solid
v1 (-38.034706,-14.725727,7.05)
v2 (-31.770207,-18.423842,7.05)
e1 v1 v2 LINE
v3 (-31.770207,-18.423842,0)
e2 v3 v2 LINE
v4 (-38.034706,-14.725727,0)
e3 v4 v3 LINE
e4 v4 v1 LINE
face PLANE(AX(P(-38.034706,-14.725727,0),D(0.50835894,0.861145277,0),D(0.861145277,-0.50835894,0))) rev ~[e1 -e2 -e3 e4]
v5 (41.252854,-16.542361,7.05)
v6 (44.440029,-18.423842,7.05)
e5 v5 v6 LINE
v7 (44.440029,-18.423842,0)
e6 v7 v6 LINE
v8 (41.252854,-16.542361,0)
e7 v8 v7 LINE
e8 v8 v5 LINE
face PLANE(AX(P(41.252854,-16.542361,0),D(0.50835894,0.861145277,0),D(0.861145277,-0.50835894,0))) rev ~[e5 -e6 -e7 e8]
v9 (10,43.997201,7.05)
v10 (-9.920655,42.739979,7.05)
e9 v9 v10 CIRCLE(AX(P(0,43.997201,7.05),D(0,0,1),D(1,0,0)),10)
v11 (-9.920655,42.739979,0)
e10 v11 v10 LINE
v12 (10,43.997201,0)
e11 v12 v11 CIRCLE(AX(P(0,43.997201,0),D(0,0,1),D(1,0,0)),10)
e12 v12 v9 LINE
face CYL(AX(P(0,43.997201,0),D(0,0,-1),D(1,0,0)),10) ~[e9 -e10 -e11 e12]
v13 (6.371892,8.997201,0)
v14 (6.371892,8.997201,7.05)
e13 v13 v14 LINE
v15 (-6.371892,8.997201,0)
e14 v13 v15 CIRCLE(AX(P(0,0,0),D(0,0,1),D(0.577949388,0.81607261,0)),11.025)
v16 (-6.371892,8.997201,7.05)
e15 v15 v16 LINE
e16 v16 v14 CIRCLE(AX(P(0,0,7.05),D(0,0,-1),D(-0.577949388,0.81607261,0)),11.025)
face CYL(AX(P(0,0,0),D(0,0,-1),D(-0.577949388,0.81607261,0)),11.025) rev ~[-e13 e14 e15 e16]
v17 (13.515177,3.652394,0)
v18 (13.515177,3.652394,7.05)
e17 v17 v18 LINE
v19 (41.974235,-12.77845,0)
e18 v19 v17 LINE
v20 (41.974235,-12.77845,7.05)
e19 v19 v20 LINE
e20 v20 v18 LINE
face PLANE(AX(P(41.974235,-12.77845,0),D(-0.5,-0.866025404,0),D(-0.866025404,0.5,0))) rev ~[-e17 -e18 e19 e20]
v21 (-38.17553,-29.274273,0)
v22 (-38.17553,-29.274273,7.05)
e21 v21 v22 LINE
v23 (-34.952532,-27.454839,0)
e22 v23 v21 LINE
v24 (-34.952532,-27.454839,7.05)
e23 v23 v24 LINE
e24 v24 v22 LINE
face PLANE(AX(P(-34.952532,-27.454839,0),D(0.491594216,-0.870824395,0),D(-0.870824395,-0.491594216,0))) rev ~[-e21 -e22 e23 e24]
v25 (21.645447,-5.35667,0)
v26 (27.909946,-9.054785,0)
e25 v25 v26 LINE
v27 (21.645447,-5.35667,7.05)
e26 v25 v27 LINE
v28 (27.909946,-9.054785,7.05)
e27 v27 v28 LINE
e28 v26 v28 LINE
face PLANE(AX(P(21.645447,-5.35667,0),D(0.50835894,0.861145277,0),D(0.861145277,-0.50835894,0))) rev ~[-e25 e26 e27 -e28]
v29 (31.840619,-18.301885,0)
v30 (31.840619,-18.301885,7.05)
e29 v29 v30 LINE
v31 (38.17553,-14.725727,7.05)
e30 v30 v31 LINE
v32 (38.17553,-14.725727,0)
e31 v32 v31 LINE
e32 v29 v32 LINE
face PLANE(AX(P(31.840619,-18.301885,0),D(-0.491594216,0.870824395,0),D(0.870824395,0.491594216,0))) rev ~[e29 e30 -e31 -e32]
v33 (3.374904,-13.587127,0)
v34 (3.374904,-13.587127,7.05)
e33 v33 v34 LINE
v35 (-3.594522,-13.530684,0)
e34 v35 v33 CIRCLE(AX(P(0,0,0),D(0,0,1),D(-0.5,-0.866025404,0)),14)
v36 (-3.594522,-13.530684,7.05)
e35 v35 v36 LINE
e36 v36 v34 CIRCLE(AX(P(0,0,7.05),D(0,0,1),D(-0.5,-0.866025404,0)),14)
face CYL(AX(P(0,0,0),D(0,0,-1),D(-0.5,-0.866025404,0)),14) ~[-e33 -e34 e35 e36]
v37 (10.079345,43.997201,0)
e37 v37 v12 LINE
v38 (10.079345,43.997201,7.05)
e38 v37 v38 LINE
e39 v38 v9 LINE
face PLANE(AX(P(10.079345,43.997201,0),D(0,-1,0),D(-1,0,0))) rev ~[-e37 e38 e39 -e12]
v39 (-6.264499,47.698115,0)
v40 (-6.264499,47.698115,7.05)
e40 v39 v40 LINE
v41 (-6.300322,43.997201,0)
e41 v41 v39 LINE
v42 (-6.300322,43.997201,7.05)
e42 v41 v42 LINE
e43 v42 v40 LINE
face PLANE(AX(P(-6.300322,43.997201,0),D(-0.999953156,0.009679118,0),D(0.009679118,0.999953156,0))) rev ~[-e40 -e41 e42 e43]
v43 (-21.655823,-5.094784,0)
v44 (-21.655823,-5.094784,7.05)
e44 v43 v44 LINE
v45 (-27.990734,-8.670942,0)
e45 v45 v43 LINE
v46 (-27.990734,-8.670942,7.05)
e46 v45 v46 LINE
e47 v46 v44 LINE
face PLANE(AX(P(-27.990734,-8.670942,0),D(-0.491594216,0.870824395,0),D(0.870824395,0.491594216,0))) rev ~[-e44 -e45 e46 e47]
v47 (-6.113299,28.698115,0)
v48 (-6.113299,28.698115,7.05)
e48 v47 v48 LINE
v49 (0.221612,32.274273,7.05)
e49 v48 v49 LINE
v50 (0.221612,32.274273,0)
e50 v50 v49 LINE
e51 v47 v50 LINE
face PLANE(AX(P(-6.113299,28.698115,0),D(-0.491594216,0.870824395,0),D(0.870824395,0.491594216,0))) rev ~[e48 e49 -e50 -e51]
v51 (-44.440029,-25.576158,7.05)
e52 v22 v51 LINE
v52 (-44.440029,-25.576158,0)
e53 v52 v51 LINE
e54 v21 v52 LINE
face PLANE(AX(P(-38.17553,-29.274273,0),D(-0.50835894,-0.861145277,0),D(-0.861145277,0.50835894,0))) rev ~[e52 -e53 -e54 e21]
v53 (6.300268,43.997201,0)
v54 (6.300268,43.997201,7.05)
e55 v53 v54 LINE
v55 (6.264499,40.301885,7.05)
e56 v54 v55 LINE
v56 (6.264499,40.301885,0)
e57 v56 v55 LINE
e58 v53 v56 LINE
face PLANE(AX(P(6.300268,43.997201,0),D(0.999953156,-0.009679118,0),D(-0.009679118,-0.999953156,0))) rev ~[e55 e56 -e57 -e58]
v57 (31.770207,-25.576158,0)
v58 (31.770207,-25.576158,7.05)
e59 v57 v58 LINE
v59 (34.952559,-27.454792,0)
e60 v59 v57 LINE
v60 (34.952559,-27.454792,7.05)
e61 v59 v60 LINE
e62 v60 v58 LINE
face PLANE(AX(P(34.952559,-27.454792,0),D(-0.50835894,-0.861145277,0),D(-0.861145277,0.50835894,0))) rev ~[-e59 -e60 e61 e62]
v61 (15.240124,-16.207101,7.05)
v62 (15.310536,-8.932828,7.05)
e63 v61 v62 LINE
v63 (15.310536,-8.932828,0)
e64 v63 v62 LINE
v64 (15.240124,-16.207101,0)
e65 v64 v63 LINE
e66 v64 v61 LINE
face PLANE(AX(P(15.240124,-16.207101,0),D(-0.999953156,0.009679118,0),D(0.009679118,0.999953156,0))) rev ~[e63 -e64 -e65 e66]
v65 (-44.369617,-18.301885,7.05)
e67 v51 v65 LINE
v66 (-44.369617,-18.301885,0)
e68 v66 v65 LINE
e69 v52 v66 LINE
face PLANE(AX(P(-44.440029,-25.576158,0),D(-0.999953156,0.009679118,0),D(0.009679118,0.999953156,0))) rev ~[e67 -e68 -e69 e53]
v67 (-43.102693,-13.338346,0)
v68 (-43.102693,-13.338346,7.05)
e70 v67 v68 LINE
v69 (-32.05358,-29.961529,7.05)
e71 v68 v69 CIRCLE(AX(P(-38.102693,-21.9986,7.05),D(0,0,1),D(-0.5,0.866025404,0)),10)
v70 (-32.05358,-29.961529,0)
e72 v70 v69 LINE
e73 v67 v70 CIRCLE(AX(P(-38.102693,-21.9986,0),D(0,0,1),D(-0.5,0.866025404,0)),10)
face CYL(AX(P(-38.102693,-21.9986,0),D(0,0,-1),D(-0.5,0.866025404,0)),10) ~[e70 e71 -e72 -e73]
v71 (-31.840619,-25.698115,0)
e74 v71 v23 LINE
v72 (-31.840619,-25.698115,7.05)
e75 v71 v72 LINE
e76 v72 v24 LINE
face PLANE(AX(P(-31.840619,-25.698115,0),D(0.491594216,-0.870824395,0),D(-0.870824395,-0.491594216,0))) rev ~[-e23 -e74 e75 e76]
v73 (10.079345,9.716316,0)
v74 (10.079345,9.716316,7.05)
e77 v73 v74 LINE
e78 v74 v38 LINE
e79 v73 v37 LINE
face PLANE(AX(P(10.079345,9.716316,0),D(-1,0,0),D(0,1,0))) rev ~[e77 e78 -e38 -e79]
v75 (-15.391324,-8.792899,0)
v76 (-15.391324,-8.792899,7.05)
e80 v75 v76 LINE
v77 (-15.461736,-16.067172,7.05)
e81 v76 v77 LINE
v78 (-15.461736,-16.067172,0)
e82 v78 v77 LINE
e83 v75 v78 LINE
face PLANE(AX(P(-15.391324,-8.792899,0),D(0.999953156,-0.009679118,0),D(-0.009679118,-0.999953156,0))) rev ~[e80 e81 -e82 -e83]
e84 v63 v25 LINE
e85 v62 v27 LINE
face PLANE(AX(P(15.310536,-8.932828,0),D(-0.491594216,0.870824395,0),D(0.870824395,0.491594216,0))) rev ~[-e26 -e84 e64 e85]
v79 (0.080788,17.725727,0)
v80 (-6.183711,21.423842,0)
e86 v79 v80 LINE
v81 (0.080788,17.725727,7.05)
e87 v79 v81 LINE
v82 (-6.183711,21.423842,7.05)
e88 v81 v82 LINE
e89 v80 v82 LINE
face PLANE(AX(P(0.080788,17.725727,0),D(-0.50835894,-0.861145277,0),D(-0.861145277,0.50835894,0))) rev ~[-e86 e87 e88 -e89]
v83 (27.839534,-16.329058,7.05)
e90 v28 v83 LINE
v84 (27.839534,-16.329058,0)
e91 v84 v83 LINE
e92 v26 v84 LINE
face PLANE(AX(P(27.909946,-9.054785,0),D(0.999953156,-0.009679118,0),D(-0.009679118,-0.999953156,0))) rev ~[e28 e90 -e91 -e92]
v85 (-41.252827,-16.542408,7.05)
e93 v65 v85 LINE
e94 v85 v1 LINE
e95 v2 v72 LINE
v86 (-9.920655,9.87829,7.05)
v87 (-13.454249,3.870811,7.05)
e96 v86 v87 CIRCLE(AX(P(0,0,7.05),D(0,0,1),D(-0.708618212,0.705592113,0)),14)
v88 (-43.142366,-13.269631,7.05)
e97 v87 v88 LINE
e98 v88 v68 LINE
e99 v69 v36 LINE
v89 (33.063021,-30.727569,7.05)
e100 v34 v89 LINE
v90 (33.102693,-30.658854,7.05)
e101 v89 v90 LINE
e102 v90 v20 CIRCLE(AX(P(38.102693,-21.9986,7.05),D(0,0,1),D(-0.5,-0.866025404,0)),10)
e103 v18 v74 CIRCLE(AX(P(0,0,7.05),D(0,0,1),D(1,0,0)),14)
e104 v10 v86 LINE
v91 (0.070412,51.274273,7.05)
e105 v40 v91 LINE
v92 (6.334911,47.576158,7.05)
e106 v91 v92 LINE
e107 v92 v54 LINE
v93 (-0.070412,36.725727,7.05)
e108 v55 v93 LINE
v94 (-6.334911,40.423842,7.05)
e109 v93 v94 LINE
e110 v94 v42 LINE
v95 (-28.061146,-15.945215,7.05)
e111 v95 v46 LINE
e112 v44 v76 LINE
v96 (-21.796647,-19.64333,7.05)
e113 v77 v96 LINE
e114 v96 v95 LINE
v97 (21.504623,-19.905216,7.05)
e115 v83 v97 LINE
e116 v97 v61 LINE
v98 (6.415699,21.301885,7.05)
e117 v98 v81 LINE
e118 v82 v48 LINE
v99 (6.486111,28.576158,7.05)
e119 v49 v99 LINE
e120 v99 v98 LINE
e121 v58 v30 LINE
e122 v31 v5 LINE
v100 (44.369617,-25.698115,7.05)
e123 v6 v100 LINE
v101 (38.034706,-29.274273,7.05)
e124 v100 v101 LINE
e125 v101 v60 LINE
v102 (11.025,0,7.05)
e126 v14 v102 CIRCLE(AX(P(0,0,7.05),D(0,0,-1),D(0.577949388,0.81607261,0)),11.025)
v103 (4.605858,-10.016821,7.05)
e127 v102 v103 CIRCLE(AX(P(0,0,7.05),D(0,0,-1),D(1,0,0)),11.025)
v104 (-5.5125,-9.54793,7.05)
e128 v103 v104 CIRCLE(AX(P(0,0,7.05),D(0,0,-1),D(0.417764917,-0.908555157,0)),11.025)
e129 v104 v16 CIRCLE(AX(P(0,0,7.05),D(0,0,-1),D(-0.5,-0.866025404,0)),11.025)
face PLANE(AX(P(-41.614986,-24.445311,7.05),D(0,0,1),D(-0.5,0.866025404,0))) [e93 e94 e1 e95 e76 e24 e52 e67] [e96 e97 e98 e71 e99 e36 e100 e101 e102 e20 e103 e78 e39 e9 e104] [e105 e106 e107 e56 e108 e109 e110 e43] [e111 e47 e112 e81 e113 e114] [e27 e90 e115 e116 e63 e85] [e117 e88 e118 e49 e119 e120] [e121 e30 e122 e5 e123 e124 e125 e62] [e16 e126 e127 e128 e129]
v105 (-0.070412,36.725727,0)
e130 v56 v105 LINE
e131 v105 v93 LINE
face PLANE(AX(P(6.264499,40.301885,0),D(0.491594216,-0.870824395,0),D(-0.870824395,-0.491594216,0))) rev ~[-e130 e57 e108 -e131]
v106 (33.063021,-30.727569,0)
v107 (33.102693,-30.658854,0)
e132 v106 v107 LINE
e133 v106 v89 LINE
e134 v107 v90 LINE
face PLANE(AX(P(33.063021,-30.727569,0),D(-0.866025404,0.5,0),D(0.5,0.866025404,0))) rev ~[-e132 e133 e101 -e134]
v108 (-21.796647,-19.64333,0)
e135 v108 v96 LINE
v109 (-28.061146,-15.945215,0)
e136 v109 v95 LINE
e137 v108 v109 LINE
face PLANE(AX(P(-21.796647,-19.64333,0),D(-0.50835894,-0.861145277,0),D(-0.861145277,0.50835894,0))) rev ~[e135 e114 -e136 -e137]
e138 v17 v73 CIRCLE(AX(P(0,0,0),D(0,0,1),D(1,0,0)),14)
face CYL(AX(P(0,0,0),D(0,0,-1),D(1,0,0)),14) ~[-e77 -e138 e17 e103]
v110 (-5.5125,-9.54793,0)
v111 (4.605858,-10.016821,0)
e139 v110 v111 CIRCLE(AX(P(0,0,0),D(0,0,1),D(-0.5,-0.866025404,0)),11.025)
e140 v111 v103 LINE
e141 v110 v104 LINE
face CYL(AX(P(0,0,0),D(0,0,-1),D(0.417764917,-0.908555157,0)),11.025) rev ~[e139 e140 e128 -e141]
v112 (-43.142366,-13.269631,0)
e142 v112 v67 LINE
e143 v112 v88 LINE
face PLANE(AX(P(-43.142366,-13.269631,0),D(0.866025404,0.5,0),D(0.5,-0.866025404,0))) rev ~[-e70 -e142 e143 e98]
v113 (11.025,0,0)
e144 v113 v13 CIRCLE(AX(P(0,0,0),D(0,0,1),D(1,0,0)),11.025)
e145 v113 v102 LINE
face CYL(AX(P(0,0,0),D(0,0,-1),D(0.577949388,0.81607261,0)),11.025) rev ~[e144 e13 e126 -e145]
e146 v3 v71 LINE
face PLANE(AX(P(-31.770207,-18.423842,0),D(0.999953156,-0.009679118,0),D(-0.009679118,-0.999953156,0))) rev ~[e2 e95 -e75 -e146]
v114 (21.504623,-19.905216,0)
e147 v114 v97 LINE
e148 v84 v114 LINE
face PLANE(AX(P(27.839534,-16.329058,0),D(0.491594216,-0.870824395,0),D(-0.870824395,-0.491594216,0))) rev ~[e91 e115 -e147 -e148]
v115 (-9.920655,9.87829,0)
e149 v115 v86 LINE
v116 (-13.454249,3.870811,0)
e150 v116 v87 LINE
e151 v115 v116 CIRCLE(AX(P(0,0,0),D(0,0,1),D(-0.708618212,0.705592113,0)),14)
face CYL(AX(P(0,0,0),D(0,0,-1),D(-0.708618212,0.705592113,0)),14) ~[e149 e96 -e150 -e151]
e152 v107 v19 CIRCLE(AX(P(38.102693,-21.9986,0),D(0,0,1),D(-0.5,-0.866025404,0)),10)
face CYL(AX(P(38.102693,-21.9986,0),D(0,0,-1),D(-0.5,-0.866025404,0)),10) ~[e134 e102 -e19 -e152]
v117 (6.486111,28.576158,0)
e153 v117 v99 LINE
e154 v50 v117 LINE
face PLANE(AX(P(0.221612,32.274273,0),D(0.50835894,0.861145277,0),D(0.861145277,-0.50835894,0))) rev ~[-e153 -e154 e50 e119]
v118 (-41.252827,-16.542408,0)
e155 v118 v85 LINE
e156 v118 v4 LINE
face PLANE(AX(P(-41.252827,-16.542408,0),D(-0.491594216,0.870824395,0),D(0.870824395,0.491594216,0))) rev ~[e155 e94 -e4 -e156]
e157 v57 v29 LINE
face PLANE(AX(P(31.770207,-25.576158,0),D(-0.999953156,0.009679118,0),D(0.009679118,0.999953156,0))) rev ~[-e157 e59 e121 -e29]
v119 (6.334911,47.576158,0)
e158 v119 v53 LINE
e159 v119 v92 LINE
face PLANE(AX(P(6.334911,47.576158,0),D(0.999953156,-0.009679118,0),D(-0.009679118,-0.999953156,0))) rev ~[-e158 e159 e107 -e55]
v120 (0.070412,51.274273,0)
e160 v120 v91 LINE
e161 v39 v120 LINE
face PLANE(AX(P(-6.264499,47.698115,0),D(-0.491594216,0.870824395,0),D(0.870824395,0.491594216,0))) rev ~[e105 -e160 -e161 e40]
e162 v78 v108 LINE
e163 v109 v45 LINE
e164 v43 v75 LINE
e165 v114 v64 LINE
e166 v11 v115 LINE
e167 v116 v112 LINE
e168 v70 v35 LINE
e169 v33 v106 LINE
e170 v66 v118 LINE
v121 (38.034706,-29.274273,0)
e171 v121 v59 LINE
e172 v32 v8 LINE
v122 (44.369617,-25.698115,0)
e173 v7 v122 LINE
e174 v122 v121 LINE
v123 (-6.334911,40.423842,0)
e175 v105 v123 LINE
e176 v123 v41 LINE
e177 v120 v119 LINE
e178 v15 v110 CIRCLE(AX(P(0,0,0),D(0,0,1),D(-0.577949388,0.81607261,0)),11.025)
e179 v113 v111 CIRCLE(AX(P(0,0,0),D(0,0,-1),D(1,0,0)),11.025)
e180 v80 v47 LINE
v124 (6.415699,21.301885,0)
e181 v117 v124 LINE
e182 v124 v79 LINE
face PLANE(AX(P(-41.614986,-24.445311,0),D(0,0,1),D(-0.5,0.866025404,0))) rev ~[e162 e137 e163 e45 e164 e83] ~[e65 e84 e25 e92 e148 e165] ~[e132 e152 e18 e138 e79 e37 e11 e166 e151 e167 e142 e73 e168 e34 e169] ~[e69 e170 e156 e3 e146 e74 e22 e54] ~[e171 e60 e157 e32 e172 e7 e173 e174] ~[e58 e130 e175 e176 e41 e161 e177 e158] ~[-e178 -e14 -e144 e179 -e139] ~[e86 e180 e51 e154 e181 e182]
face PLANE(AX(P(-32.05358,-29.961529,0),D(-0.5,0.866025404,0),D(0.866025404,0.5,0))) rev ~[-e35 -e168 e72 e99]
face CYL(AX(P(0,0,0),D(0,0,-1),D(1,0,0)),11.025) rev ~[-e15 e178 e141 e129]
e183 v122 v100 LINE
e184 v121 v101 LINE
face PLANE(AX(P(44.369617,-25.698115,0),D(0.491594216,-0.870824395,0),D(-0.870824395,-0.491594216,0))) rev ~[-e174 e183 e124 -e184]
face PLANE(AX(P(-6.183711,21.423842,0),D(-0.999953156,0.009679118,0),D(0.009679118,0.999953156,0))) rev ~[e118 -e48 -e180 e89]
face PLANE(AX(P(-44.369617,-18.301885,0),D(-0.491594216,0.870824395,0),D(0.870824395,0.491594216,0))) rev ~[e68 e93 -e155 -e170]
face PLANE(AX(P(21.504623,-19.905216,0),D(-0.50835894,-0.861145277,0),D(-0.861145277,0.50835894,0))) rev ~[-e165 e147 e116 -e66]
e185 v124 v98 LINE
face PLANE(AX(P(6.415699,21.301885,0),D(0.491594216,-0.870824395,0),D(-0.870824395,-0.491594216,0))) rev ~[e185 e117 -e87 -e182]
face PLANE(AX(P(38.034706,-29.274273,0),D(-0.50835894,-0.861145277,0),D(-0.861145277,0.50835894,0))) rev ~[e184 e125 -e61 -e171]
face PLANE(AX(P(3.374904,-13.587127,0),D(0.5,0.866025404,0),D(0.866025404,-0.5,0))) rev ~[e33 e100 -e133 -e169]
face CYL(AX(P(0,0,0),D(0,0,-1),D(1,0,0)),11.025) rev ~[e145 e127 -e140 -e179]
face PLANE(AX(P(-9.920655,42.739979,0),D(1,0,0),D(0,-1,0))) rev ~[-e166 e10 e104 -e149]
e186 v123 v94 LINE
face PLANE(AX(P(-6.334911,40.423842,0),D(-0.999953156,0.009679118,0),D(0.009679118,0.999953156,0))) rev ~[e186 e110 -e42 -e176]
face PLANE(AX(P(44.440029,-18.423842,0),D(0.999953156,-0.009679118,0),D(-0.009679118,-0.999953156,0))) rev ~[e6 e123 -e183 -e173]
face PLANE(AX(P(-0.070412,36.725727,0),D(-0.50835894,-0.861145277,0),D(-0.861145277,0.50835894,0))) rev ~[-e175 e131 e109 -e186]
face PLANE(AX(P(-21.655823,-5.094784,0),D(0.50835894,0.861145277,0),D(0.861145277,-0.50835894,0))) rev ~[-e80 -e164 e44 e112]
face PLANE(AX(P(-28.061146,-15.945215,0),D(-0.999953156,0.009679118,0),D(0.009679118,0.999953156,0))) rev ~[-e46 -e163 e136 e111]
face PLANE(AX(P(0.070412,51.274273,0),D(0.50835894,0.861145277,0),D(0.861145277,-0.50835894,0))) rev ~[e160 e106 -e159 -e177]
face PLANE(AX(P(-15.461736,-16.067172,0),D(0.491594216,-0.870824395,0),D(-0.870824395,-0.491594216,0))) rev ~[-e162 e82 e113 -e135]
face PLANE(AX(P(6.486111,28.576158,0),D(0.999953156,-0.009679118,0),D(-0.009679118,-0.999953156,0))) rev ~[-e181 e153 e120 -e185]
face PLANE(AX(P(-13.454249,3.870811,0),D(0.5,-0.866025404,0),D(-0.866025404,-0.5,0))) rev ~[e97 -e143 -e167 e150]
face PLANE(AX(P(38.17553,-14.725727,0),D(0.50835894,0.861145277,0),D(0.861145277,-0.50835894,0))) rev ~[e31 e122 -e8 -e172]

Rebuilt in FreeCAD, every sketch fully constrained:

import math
import FreeCAD as App
import Part
import Sketcher
from FreeCAD import Vector

doc = App.newDocument("Part")
params = doc.addObject("Spreadsheet::Sheet", "Params")
for row, (alias, value) in enumerate([
    ("sketch1_radius", "10 mm"),
    ("sketch1_radius2", "14 mm"),
    ("pad1_length", "7.05 mm"),
], start=1):
    params.set(f"A{row}", alias)
    params.set(f"B{row}", "=" + value)
    params.setAlias(f"B{row}", alias)

body = doc.addObject("PartDesign::Body", "Body")

# Sketch on XY plane
sketch1 = body.newObject("Sketcher::SketchObject", "Sketch")
sketch1.AttachmentSupport = (doc.getObject("XY_Plane"), [""])
sketch1.MapMode = "FlatFace"
sketch1.addGeometry([
    Part.ArcOfCircle(Part.Circle(Vector(0, 43.997201, 0), Vector(0, 0, 1), 10), math.radians(0), math.radians(187.222459)),  # 0
    Part.LineSegment(Vector(-9.920655, 42.739979, 0), Vector(-9.920655, 9.87829, 0)),  # 1
    Part.ArcOfCircle(Part.Circle(Vector(0, 0, 0), Vector(0, 0, 1), 14), math.radians(135.1226), math.radians(360)),  # 2
    Part.ArcOfCircle(Part.Circle(Vector(0, 0, 0), Vector(0, 0, 1), 14), math.radians(0), math.radians(43.949382)),  # 3
    Part.LineSegment(Vector(10.079345, 9.716316, 0), Vector(10.079345, 43.997201, 0)),  # 4
    Part.LineSegment(Vector(10.079345, 43.997201, 0), Vector(10, 43.997201, 0)),  # 5
    Part.LineSegment(Vector(0.221612, 32.274273, 0), Vector(6.486111, 28.576158, 0)),  # 6
    Part.LineSegment(Vector(6.486111, 28.576158, 0), Vector(6.415699, 21.301885, 0)),  # 7
    Part.LineSegment(Vector(6.415699, 21.301885, 0), Vector(0.080788, 17.725727, 0)),  # 8
    Part.LineSegment(Vector(0.080788, 17.725727, 0), Vector(-6.183711, 21.423842, 0)),  # 9
    Part.LineSegment(Vector(-6.183711, 21.423842, 0), Vector(-6.113299, 28.698115, 0)),  # 10
    Part.LineSegment(Vector(-6.113299, 28.698115, 0), Vector(0.221612, 32.274273, 0)),  # 11
    Part.LineSegment(Vector(-6.300322, 43.997201, 0), Vector(-6.264499, 47.698115, 0)),  # 12
    Part.LineSegment(Vector(-6.264499, 47.698115, 0), Vector(0.070412, 51.274273, 0)),  # 13
    Part.LineSegment(Vector(0.070412, 51.274273, 0), Vector(6.334911, 47.576158, 0)),  # 14
    Part.LineSegment(Vector(6.334911, 47.576158, 0), Vector(6.300268, 43.997201, 0)),  # 15
    Part.LineSegment(Vector(6.300268, 43.997201, 0), Vector(6.264499, 40.301885, 0)),  # 16
    Part.LineSegment(Vector(6.264499, 40.301885, 0), Vector(-0.070412, 36.725727, 0)),  # 17
    Part.LineSegment(Vector(-0.070412, 36.725727, 0), Vector(-6.334911, 40.423842, 0)),  # 18
    Part.LineSegment(Vector(-6.334911, 40.423842, 0), Vector(-6.300322, 43.997201, 0)),  # 19
    Part.ArcOfCircle(Part.Circle(Vector(0, 0, 0), Vector(0, 0, 1), 11.025), math.radians(54.693558), math.radians(125.306442)),  # 20
    Part.ArcOfCircle(Part.Circle(Vector(0, 0, 0), Vector(0, 0, 1), 11.025), math.radians(0), math.radians(54.693558)),  # 21
    Part.ArcOfCircle(Part.Circle(Vector(0, 0, 0), Vector(0, 0, 1), 11.025), math.radians(125.306442), math.radians(360)),  # 22
], False)
sketch1.addConstraint([
    Sketcher.Constraint("Coincident", 0, 2, 1, 1),
    Sketcher.Constraint("Coincident", 1, 2, 2, 1),
    Sketcher.Constraint("Tangent", 2, 2, 3, 1),
    Sketcher.Constraint("Coincident", 3, 2, 4, 1),
    Sketcher.Constraint("Coincident", 4, 2, 5, 1),
    Sketcher.Constraint("Coincident", 5, 2, 0, 1),
    Sketcher.Constraint("Coincident", 6, 2, 7, 1),
    Sketcher.Constraint("Coincident", 7, 2, 8, 1),
    Sketcher.Constraint("Coincident", 8, 2, 9, 1),
    Sketcher.Constraint("Coincident", 9, 2, 10, 1),
    Sketcher.Constraint("Coincident", 10, 2, 11, 1),
    Sketcher.Constraint("Coincident", 11, 2, 6, 1),
    Sketcher.Constraint("Coincident", 12, 2, 13, 1),
    Sketcher.Constraint("Coincident", 13, 2, 14, 1),
    Sketcher.Constraint("Coincident", 14, 2, 15, 1),
    Sketcher.Constraint("Coincident", 15, 2, 16, 1),
    Sketcher.Constraint("Coincident", 16, 2, 17, 1),
    Sketcher.Constraint("Coincident", 17, 2, 18, 1),
    Sketcher.Constraint("Coincident", 18, 2, 19, 1),
    Sketcher.Constraint("Coincident", 19, 2, 12, 1),
    Sketcher.Constraint("Tangent", 20, 1, 21, 2),
    Sketcher.Constraint("Tangent", 21, 1, 22, 2),
    Sketcher.Constraint("Tangent", 22, 1, 20, 2),
    Sketcher.Constraint("Vertical", 1),
    Sketcher.Constraint("Vertical", 4),
    Sketcher.Constraint("Horizontal", 5),
    Sketcher.Constraint("Coincident", 2, 3, -1, 1),
    Sketcher.Constraint("Coincident", 20, 3, -1, 1),
    Sketcher.Constraint("Equal", 2, 3),
    Sketcher.Constraint("PointOnObject", 0, 3, -2),
    Sketcher.Constraint("PointOnObject", 2, 2, -1),
    Sketcher.Constraint("PointOnObject", 21, 1, -1),
    Sketcher.Constraint("Parallel", 6, 9),
    Sketcher.Constraint("Parallel", 7, 10),
    Sketcher.Constraint("Parallel", 8, 11),
    Sketcher.Constraint("Parallel", 10, 12),
    Sketcher.Constraint("Parallel", 11, 13),
    Sketcher.Constraint("Parallel", 9, 14),
    Sketcher.Constraint("Parallel", 12, 15),
    Sketcher.Constraint("Parallel", 15, 16),
    Sketcher.Constraint("Parallel", 13, 17),
    Sketcher.Constraint("Parallel", 14, 18),
    Sketcher.Constraint("Parallel", 16, 19),
    Sketcher.Constraint("Horizontal", 0, 3, 4, 2),
    Sketcher.Constraint("Horizontal", 5, 2, 15, 2),
    Sketcher.Constraint("Horizontal", 15, 2, 19, 2),
    Sketcher.Constraint("Horizontal", 20, 1, 22, 1),
    Sketcher.Constraint("Equal", 6, 7),
    Sketcher.Constraint("Equal", 7, 8),
    Sketcher.Constraint("Equal", 8, 9),
    Sketcher.Constraint("Equal", 11, 13),
    Sketcher.Constraint("Equal", 13, 14),
    Sketcher.Constraint("Equal", 14, 17),
    Sketcher.Constraint("Radius", 0, 10.0),
    Sketcher.Constraint("Radius", 2, 14.0),
    Sketcher.Constraint("Radius", 20, 11.025),
    Sketcher.Constraint("DistanceX", 0, 2, 4, 2, 20.0),
    Sketcher.Constraint("DistanceY", 1, 2, 1, 1, 32.86169),
    Sketcher.Constraint("DistanceY", -1, 1, 0, 3, 43.997201),
    Sketcher.Constraint("DistanceX", -1, 1, 7, 2, 6.415699),
    Sketcher.Constraint("DistanceX", 10, 2, -1, 1, 6.113299),
    Sketcher.Constraint("DistanceX", 12, 2, -1, 1, 6.264499),
    Sketcher.Constraint("DistanceX", -1, 1, 16, 2, 6.264499),
    Sketcher.Constraint("DistanceY", -1, 1, 20, 1, 8.997201),
    Sketcher.Constraint("DistanceX", 9, 2, 8, 2, 6.264499),
    Sketcher.Constraint("Distance", 16, 3.695488),
    Sketcher.Constraint("DistanceX", -1, 1, 6, 2, 6.486111),
    Sketcher.Constraint("DistanceY", 3, 2, 6, 2, 18.859842),
    Sketcher.Constraint("DistanceY", 3, 2, 7, 2, 11.585569),
])
sketch1.setExpression("Constraints[53]", "Params.sketch1_radius")
sketch1.setExpression("Constraints[54]", "Params.sketch1_radius2")
pad1 = body.newObject("PartDesign::Pad", "Pad")
pad1.Profile = sketch1
pad1.setExpression("Length", "Params.pad1_length")
body2 = doc.addObject("PartDesign::Body", "Body001")
doc.recompute()

body2.BaseFeature = body
doc.recompute()

body3 = doc.addObject("PartDesign::Body", "Body002")
body3.BaseFeature = body
body3.Placement = App.Placement(Vector(0, 0, 0), App.Rotation(Vector(0, 0, -1), 120))
boolean = body2.newObject("PartDesign::Boolean", "Boolean")
boolean.Type = "Fuse"
boolean.addObjects([body3])
doc.recompute()

body.Placement = App.Placement(Vector(0, 0, 0), App.Rotation(Vector(0, 0, -1), 240))
boolean2 = body2.newObject("PartDesign::Boolean", "Boolean001")
boolean2.Type = "Fuse"
boolean2.addObjects([body])

doc.recompute()
